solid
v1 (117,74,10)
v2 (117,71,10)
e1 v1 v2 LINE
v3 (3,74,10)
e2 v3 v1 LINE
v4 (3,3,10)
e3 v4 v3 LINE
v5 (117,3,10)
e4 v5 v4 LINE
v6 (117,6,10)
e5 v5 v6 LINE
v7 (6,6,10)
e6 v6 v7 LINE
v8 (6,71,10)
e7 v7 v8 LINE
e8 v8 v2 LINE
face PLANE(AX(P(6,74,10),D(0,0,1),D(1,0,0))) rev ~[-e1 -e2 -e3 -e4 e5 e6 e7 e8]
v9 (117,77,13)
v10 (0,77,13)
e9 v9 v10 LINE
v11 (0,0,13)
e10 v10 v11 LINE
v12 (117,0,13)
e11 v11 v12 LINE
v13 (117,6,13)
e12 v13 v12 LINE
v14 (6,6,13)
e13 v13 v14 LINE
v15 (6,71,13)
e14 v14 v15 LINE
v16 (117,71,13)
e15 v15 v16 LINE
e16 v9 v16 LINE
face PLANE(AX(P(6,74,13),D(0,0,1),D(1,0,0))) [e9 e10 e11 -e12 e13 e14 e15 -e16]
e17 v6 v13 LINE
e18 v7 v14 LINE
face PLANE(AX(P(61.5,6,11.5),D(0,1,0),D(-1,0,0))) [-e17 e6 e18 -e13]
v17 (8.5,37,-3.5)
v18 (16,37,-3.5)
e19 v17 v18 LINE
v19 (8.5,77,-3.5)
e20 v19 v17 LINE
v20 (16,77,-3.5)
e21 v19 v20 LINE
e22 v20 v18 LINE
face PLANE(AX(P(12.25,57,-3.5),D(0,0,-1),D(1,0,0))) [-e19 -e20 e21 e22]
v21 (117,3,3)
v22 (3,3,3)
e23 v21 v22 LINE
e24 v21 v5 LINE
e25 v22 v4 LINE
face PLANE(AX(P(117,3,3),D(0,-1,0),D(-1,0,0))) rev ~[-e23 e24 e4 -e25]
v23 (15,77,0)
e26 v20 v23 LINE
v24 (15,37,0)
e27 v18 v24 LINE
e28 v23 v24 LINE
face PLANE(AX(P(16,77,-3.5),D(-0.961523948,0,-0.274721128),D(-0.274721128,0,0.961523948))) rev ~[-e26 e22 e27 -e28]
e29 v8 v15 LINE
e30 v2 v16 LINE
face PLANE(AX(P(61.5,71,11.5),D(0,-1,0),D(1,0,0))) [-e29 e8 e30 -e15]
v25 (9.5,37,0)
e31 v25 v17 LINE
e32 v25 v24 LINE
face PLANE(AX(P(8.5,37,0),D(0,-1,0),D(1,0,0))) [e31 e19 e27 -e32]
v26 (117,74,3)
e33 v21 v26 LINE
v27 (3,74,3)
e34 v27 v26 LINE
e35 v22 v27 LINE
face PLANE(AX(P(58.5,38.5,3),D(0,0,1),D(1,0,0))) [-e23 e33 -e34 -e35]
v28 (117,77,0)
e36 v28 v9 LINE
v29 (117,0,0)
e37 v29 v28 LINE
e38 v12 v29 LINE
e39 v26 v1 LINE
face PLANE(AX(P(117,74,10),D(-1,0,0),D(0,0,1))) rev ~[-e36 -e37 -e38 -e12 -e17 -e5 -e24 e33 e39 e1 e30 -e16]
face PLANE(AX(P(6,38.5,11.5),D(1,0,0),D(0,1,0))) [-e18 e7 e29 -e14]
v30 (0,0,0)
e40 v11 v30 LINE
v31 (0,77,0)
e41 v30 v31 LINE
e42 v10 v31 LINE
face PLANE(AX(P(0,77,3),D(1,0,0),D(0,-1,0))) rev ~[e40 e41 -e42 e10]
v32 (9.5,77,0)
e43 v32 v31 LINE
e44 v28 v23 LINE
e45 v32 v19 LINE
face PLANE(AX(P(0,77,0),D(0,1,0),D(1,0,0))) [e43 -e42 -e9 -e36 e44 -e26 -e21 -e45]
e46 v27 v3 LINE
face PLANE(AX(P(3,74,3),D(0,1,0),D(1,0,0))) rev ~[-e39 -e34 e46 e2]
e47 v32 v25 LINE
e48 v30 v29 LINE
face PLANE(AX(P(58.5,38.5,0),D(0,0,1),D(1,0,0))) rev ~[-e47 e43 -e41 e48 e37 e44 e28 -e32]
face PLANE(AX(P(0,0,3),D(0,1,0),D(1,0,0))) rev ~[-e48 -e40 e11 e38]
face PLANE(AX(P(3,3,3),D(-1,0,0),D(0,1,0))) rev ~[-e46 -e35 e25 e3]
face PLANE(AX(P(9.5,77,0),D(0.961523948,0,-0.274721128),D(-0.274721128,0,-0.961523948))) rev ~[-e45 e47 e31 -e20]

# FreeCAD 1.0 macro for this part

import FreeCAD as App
import Part
import Sketcher
from FreeCAD import Vector
Q = App.Units.Quantity

doc = App.newDocument("Part")
body = doc.addObject("PartDesign::Body", "Body")

sketch1 = body.newObject("Sketcher::SketchObject", "Sketch")
sketch1.AttachmentSupport = (doc.getObject("XY_Plane"), [""])
sketch1.MapMode = "FlatFace"
sketch1.addGeometry([
    Part.LineSegment(Vector(0, 77, 0), Vector(0, 0, 0)),
    Part.LineSegment(Vector(0, 0, 0), Vector(117, 0, 0)),
    Part.LineSegment(Vector(117, 0, 0), Vector(117, 77, 0)),
    Part.LineSegment(Vector(117, 77, 0), Vector(0, 77, 0)),
], False)
sketch1.addConstraint([
    Sketcher.Constraint("Coincident", 0, 2, 1, 1),
    Sketcher.Constraint("Coincident", 1, 2, 2, 1),
    Sketcher.Constraint("Coincident", 2, 2, 3, 1),
    Sketcher.Constraint("Coincident", 3, 2, 0, 1),
    Sketcher.Constraint("Vertical", 0),
    Sketcher.Constraint("Horizontal", 1),
    Sketcher.Constraint("Vertical", 2),
    Sketcher.Constraint("Horizontal", 3),
    Sketcher.Constraint("Coincident", 0, 2, -1, 1),
    Sketcher.Constraint("DistanceX", 1, 1, 1, 2, Q("117 mm")),
    Sketcher.Constraint("DistanceY", 0, 2, 0, 1, Q("77 mm")),
])
pad1 = body.newObject("PartDesign::Pad", "Pad")
pad1.Profile = sketch1
pad1.Length = 3

sketch2 = body.newObject("Sketcher::SketchObject", "Sketch001")
sketch2.AttachmentSupport = (doc.getObject("XY_Plane"), [""])
sketch2.MapMode = "FlatFace"
sketch2.AttachmentOffset = App.Placement(Vector(0, 0, 3), App.Rotation())
sketch2.addGeometry([
    Part.LineSegment(Vector(117, 0, 0), Vector(117, 3, 0)),
    Part.LineSegment(Vector(117, 3, 0), Vector(3, 3, 0)),
    Part.LineSegment(Vector(3, 3, 0), Vector(3, 74, 0)),
    Part.LineSegment(Vector(3, 74, 0), Vector(117, 74, 0)),
    Part.LineSegment(Vector(117, 74, 0), Vector(117, 77, 0)),
    Part.LineSegment(Vector(117, 77, 0), Vector(0, 77, 0)),
    Part.LineSegment(Vector(0, 77, 0), Vector(0, 0, 0)),
    Part.LineSegment(Vector(0, 0, 0), Vector(117, 0, 0)),
], False)
sketch2.addConstraint([
    Sketcher.Constraint("Coincident", 0, 2, 1, 1),
    Sketcher.Constraint("Coincident", 1, 2, 2, 1),
    Sketcher.Constraint("Coincident", 2, 2, 3, 1),
    Sketcher.Constraint("Coincident", 3, 2, 4, 1),
    Sketcher.Constraint("Coincident", 4, 2, 5, 1),
    Sketcher.Constraint("Coincident", 5, 2, 6, 1),
    Sketcher.Constraint("Coincident", 6, 2, 7, 1),
    Sketcher.Constraint("Coincident", 7, 2, 0, 1),
    Sketcher.Constraint("Vertical", 0),
    Sketcher.Constraint("Horizontal", 1),
    Sketcher.Constraint("Vertical", 2),
    Sketcher.Constraint("Horizontal", 3),
    Sketcher.Constraint("Vertical", 4),
    Sketcher.Constraint("Horizontal", 5),
    Sketcher.Constraint("Vertical", 6),
    Sketcher.Constraint("Horizontal", 7),
    Sketcher.Constraint("Coincident", 6, 2, -1, 1),
    Sketcher.Constraint("Vertical", 0, 2, 3, 2),
    Sketcher.Constraint("Equal", 0, 4),
    Sketcher.Constraint("DistanceX", 1, 2, 1, 1, Q("114 mm")),
    Sketcher.Constraint("DistanceX", 5, 2, 5, 1, Q("117 mm")),
    Sketcher.Constraint("DistanceY", 0, 1, 0, 2, Q("3 mm")),
    Sketcher.Constraint("DistanceY", 2, 1, 2, 2, Q("71 mm")),
])
pad2 = body.newObject("PartDesign::Pad", "Pad001")
pad2.Profile = sketch2
pad2.Length = 10

sketch3 = body.newObject("Sketcher::SketchObject", "Sketch002")
sketch3.AttachmentSupport = (doc.getObject("YZ_Plane"), [""])
sketch3.MapMode = "FlatFace"
sketch3.AttachmentOffset = App.Placement(Vector(0, 0, 3), App.Rotation())
sketch3.addGeometry([
    Part.LineSegment(Vector(3, 13, 0), Vector(3, 10, 0)),
    Part.LineSegment(Vector(3, 10, 0), Vector(74, 10, 0)),
    Part.LineSegment(Vector(74, 10, 0), Vector(74, 13, 0)),
    Part.LineSegment(Vector(74, 13, 0), Vector(3, 13, 0)),
], False)
sketch3.addConstraint([
    Sketcher.Constraint("Coincident", 0, 2, 1, 1),
    Sketcher.Constraint("Coincident", 1, 2, 2, 1),
    Sketcher.Constraint("Coincident", 2, 2, 3, 1),
    Sketcher.Constraint("Coincident", 3, 2, 0, 1),
    Sketcher.Constraint("Vertical", 0),
    Sketcher.Constraint("Horizontal", 1),
    Sketcher.Constraint("Vertical", 2),
    Sketcher.Constraint("Horizontal", 3),
    Sketcher.Constraint("DistanceX", 1, 1, 1, 2, Q("71 mm")),
    Sketcher.Constraint("DistanceY", 0, 2, 0, 1, Q("3 mm")),
    Sketcher.Constraint("DistanceX", -1, 1, 0, 2, Q("3 mm")),
    Sketcher.Constraint("DistanceY", -1, 1, 0, 2, Q("10 mm")),
])
pad3 = body.newObject("PartDesign::Pad", "Pad002")
pad3.Profile = sketch3
pad3.Length = 3

sketch4 = body.newObject("Sketcher::SketchObject", "Sketch003")
sketch4.AttachmentSupport = (doc.getObject("XZ_Plane"), [""])
sketch4.MapMode = "FlatFace"
sketch4.AttachmentOffset = App.Placement(Vector(0, 0, -3), App.Rotation())
sketch4.addGeometry([
    Part.LineSegment(Vector(117, 13, 0), Vector(117, 10, 0)),
    Part.LineSegment(Vector(117, 10, 0), Vector(6, 10, 0)),
    Part.LineSegment(Vector(6, 10, 0), Vector(6, 13, 0)),
    Part.LineSegment(Vector(6, 13, 0), Vector(117, 13, 0)),
], False)
sketch4.addConstraint([
    Sketcher.Constraint("Coincident", 0, 2, 1, 1),
    Sketcher.Constraint("Coincident", 1, 2, 2, 1),
    Sketcher.Constraint("Coincident", 2, 2, 3, 1),
    Sketcher.Constraint("Coincident", 3, 2, 0, 1),
    Sketcher.Constraint("Vertical", 0),
    Sketcher.Constraint("Horizontal", 1),
    Sketcher.Constraint("Vertical", 2),
    Sketcher.Constraint("Horizontal", 3),
    Sketcher.Constraint("DistanceX", 1, 2, 1, 1, Q("111 mm")),
    Sketcher.Constraint("DistanceY", 0, 2, 0, 1, Q("3 mm")),
    Sketcher.Constraint("DistanceX", -1, 1, 0, 2, Q("117 mm")),
    Sketcher.Constraint("DistanceY", -1, 1, 0, 2, Q("10 mm")),
])
pad4 = body.newObject("PartDesign::Pad", "Pad003")
pad4.Profile = sketch4
pad4.Length = 3
pad4.Reversed = True

sketch5 = body.newObject("Sketcher::SketchObject", "Sketch004")
sketch5.AttachmentSupport = (doc.getObject("XZ_Plane"), [""])
sketch5.MapMode = "FlatFace"
sketch5.AttachmentOffset = App.Placement(Vector(0, 0, -74), App.Rotation())
sketch5.addGeometry([
    Part.LineSegment(Vector(6, 13, 0), Vector(6, 10, 0)),
    Part.LineSegment(Vector(6, 10, 0), Vector(117, 10, 0)),
    Part.LineSegment(Vector(117, 10, 0), Vector(117, 13, 0)),
    Part.LineSegment(Vector(117, 13, 0), Vector(6, 13, 0)),
], False)
sketch5.addConstraint([
    Sketcher.Constraint("Coincident", 0, 2, 1, 1),
    Sketcher.Constraint("Coincident", 1, 2, 2, 1),
    Sketcher.Constraint("Coincident", 2, 2, 3, 1),
    Sketcher.Constraint("Coincident", 3, 2, 0, 1),
    Sketcher.Constraint("Vertical", 0),
    Sketcher.Constraint("Horizontal", 1),
    Sketcher.Constraint("Vertical", 2),
    Sketcher.Constraint("Horizontal", 3),
    Sketcher.Constraint("DistanceX", 1, 1, 1, 2, Q("111 mm")),
    Sketcher.Constraint("DistanceY", 0, 2, 0, 1, Q("3 mm")),
    Sketcher.Constraint("DistanceX", -1, 1, 0, 2, Q("6 mm")),
    Sketcher.Constraint("DistanceY", -1, 1, 0, 2, Q("10 mm")),
])
pad5 = body.newObject("PartDesign::Pad", "Pad004")
pad5.Profile = sketch5
pad5.Length = 3

sketch6 = body.newObject("Sketcher::SketchObject", "Sketch005")
sketch6.AttachmentSupport = (doc.getObject("XY_Plane"), [""])
sketch6.MapMode = "FlatFace"
sketch6.addGeometry([
    Part.LineSegment(Vector(8.5, 37, 0), Vector(8.5, 77, 0)),
    Part.LineSegment(Vector(8.5, 77, 0), Vector(16, 77, 0)),
    Part.LineSegment(Vector(16, 77, 0), Vector(16, 37, 0)),
    Part.LineSegment(Vector(16, 37, 0), Vector(8.5, 37, 0)),
], False)
sketch6.addConstraint([
    Sketcher.Constraint("Coincident", 0, 2, 1, 1),
    Sketcher.Constraint("Coincident", 1, 2, 2, 1),
    Sketcher.Constraint("Coincident", 2, 2, 3, 1),
    Sketcher.Constraint("Coincident", 3, 2, 0, 1),
    Sketcher.Constraint("Vertical", 0),
    Sketcher.Constraint("Horizontal", 1),
    Sketcher.Constraint("Vertical", 2),
    Sketcher.Constraint("Horizontal", 3),
    Sketcher.Constraint("DistanceY", 0, 1, 0, 2, Q("40 mm")),
    Sketcher.Constraint("DistanceX", 1, 1, 1, 2, Q("7.5 mm")),
    Sketcher.Constraint("DistanceY", -1, 1, 0, 2, Q("77 mm")),
    Sketcher.Constraint("DistanceX", -1, 1, 1, 2, Q("16 mm")),
])
pad6 = body.newObject("PartDesign::Pad", "Pad005")
pad6.Profile = sketch6
pad6.Length = 3.5
pad6.Reversed = True

sketch7 = body.newObject("Sketcher::SketchObject", "Sketch006")
sketch7.AttachmentSupport = (doc.getObject("XZ_Plane"), [""])
sketch7.MapMode = "FlatFace"
sketch7.AttachmentOffset = App.Placement(Vector(0, 0, -77), App.Rotation())
sketch7.addGeometry([
    Part.LineSegment(Vector(16, 0, 0), Vector(16, -3.5, 0)),
    Part.LineSegment(Vector(16, -3.5, 0), Vector(15, 0, 0)),
    Part.LineSegment(Vector(15, 0, 0), Vector(16, 0, 0)),
], False)
sketch7.addConstraint([
    Sketcher.Constraint("Coincident", 0, 2, 1, 1),
    Sketcher.Constraint("Coincident", 1, 2, 2, 1),
    Sketcher.Constraint("Coincident", 2, 2, 0, 1),
    Sketcher.Constraint("Vertical", 0),
    Sketcher.Constraint("Horizontal", 2),
    Sketcher.Constraint("PointOnObject", 1, 2, -1),
    Sketcher.Constraint("DistanceX", 2, 1, 2, 2, Q("1 mm")),
    Sketcher.Constraint("DistanceY", 0, 2, 0, 1, Q("3.5 mm")),
    Sketcher.Constraint("DistanceX", -1, 1, 0, 2, Q("16 mm")),
])
pocket1 = body.newObject("PartDesign::Pocket", "Pocket")
pocket1.Profile = sketch7
pocket1.Length = 40
pocket1.Reversed = True

sketch8 = body.newObject("Sketcher::SketchObject", "Sketch007")
sketch8.AttachmentSupport = (doc.getObject("XZ_Plane"), [""])
sketch8.MapMode = "FlatFace"
sketch8.AttachmentOffset = App.Placement(Vector(0, 0, -77), App.Rotation())
sketch8.addGeometry([
    Part.LineSegment(Vector(9.5, 0, 0), Vector(8.5, -3.5, 0)),
    Part.LineSegment(Vector(8.5, -3.5, 0), Vector(8.5, 0, 0)),
    Part.LineSegment(Vector(8.5, 0, 0), Vector(9.5, 0, 0)),
], False)
sketch8.addConstraint([
    Sketcher.Constraint("Coincident", 0, 2, 1, 1),
    Sketcher.Constraint("Coincident", 1, 2, 2, 1),
    Sketcher.Constraint("Coincident", 2, 2, 0, 1),
    Sketcher.Constraint("Vertical", 1),
    Sketcher.Constraint("Horizontal", 2),
    Sketcher.Constraint("PointOnObject", 1, 2, -1),
    Sketcher.Constraint("DistanceX", 2, 1, 2, 2, Q("1 mm")),
    Sketcher.Constraint("DistanceY", 1, 1, 1, 2, Q("3.5 mm")),
    Sketcher.Constraint("DistanceX", -1, 1, 0, 2, Q("8.5 mm")),
])
pocket2 = body.newObject("PartDesign::Pocket", "Pocket001")
pocket2.Profile = sketch8
pocket2.Length = 40
pocket2.Reversed = True

doc.recompute()
